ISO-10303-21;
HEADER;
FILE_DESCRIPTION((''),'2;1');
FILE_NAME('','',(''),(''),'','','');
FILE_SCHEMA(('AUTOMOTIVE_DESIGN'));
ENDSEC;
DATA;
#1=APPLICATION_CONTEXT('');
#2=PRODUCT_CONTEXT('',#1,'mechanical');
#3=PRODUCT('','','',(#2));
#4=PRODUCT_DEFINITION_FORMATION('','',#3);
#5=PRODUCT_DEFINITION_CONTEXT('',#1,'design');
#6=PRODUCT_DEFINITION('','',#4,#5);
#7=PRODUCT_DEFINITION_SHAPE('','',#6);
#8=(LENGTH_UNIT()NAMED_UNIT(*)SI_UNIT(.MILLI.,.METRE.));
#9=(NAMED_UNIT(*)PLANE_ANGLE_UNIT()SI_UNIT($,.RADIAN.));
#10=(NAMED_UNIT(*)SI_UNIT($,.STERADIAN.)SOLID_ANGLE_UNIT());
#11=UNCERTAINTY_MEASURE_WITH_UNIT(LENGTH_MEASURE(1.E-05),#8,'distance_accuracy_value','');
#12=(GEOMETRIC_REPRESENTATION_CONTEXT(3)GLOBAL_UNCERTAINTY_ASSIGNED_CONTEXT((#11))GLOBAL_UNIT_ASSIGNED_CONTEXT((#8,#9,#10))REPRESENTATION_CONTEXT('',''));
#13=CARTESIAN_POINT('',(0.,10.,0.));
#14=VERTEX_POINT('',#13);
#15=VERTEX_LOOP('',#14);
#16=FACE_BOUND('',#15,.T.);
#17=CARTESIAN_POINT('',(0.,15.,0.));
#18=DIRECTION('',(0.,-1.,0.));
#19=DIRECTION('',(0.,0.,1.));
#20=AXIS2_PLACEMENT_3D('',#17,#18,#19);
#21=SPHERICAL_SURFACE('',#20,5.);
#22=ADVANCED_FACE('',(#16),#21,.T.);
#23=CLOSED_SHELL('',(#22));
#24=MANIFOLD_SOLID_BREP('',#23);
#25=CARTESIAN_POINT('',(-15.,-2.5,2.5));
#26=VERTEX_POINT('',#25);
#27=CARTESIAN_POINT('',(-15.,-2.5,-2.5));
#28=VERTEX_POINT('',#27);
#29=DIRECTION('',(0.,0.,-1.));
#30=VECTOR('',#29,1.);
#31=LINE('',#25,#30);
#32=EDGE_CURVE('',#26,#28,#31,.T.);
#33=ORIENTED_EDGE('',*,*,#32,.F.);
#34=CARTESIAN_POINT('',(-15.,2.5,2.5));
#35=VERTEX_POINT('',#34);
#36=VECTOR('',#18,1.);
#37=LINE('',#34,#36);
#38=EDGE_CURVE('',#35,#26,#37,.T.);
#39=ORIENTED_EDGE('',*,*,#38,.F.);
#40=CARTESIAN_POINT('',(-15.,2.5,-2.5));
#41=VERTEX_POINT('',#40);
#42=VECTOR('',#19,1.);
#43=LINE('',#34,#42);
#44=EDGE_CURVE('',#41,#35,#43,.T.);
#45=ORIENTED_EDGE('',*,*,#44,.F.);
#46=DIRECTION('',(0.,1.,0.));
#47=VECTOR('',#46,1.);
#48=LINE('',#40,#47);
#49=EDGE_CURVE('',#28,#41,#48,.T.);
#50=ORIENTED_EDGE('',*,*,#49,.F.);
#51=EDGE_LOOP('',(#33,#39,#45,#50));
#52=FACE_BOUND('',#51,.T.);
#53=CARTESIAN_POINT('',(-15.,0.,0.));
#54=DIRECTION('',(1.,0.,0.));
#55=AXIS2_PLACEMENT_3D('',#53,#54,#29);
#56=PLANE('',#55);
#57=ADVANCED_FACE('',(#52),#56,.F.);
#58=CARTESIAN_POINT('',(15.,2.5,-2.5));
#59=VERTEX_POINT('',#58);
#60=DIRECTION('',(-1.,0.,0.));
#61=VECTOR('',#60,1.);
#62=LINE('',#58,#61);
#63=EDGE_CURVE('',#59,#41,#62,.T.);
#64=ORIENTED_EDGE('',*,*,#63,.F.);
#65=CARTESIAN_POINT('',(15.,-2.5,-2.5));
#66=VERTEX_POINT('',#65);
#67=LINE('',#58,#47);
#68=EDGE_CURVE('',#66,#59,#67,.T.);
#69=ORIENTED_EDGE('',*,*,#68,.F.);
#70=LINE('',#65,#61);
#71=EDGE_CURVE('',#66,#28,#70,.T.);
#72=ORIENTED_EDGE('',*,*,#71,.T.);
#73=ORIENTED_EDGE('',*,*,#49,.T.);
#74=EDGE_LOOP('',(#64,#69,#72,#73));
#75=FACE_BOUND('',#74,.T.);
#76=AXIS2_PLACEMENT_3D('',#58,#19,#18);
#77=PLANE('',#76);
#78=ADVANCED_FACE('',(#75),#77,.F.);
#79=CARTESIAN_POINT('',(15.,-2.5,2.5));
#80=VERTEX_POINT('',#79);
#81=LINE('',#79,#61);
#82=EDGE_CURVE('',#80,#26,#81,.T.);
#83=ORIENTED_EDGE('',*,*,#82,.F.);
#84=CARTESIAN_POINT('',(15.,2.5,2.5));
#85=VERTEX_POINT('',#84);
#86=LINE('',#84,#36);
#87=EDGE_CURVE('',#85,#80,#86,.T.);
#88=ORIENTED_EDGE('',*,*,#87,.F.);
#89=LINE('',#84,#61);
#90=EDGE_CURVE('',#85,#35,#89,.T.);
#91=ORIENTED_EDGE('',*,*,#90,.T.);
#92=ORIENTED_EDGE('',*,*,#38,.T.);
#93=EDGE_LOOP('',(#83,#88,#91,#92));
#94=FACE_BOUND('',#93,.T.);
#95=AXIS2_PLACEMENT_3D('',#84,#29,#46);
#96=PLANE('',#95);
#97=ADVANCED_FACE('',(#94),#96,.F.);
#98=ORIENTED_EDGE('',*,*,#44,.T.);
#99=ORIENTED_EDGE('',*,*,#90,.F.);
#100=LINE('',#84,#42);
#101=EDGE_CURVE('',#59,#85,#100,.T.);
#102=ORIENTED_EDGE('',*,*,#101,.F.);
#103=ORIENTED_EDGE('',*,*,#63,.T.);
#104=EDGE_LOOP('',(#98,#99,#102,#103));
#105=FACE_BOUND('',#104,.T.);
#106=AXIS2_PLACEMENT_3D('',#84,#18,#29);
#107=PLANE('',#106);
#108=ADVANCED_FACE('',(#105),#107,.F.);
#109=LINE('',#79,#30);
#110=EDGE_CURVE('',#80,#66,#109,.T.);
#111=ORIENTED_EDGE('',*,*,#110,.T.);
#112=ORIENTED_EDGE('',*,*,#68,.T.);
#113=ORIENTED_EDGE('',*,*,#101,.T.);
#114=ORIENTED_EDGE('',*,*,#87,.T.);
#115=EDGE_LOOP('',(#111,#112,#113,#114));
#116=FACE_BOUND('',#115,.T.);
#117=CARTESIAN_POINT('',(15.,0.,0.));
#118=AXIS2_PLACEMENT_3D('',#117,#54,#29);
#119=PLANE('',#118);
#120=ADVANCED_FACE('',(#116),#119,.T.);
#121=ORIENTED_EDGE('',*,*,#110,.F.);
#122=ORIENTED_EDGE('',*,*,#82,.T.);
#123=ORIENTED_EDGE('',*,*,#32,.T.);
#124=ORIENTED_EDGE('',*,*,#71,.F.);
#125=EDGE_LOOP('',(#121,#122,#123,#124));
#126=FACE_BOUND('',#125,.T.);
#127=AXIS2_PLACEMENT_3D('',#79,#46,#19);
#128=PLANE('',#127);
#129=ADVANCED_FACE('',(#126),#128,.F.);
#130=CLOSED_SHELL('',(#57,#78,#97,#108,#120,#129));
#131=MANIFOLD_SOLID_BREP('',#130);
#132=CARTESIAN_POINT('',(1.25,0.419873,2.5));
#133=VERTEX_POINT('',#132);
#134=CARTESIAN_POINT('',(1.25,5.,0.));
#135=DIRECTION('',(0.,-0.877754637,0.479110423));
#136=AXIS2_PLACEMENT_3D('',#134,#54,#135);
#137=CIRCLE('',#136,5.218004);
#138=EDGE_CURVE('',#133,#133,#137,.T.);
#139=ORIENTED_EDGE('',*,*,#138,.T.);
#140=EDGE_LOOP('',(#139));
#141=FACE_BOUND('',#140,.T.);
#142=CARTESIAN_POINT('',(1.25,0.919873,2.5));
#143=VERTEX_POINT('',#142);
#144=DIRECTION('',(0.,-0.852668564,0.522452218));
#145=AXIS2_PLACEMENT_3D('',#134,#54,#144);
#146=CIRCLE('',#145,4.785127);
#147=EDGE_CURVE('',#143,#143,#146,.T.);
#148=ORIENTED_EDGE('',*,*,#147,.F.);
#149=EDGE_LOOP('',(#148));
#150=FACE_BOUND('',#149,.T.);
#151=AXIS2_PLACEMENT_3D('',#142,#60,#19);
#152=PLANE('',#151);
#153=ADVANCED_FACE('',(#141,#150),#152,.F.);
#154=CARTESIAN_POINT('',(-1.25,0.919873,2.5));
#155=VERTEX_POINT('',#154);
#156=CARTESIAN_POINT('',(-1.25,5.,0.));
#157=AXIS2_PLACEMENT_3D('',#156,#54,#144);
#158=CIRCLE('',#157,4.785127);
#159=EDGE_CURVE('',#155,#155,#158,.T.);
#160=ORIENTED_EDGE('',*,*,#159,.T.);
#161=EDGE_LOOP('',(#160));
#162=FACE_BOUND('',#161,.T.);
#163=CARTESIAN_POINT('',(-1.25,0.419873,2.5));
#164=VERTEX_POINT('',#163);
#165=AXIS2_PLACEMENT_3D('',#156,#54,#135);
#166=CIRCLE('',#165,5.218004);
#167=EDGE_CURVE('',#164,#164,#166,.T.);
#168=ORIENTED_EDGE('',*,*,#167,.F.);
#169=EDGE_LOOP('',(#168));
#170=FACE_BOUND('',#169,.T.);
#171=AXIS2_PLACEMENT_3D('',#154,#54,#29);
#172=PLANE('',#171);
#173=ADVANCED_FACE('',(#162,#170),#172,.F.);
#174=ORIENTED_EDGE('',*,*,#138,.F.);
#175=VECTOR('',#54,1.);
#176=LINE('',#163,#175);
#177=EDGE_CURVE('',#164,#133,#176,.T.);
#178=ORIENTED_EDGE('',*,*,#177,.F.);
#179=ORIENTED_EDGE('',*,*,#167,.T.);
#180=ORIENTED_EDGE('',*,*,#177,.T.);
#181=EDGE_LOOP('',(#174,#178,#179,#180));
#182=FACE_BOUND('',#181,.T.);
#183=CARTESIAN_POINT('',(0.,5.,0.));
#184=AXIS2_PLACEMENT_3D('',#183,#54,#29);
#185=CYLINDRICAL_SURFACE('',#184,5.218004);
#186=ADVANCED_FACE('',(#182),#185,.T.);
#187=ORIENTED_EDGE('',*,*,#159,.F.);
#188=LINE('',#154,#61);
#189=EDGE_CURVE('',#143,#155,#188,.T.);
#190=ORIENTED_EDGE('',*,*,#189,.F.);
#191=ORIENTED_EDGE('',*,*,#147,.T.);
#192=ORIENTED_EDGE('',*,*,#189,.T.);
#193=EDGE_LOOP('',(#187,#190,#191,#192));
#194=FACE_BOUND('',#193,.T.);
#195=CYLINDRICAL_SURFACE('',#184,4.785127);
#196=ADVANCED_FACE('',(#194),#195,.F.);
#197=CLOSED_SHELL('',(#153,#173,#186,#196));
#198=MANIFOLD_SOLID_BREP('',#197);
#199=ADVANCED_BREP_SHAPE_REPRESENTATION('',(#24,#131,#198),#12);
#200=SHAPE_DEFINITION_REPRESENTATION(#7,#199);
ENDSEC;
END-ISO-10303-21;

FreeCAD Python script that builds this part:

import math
import FreeCAD as App
import Part
import Sketcher
from FreeCAD import Vector
Q = App.Units.Quantity


def add_polygon(sketch, points):
    """Adds a closed chain of lines whose ends are joined by coincident constraints."""
    first, n = sketch.GeometryCount, len(points)
    for a, b in zip(points, points[1:] + points[:1]):
        sketch.addGeometry(Part.LineSegment(App.Vector(*a, 0), App.Vector(*b, 0)), False)
    for i in range(n):
        sketch.addConstraint(Sketcher.Constraint("Coincident", first + i, 2, first + (i + 1) % n, 1))

doc = App.newDocument("Part")
params = doc.addObject("Spreadsheet::Sheet", "Params")
for row, (alias, value) in enumerate([
    ("sketch1_width", "5 mm"),
    ("pad1_length", "30 mm"),
    ("sketch2_radius", "5 mm"),
    ("revolution_angle", "360 deg"),
    ("sketch3_width", "2.5 mm"),
    ("sketch3_height", "0.5 mm"),
    ("sketch4_diameter", "10 mm"),
], start=1):
    params.set(f"A{row}", alias)
    params.set(f"B{row}", "=" + value)
    params.setAlias(f"B{row}", alias)

body = doc.addObject("PartDesign::Body", "Body")

# Sketch on YZ plane
sketch1 = doc.addObject("Sketcher::SketchObject", "Sketch")
body.addObject(sketch1)
sketch1.AttachmentSupport = (doc.YZ_Plane, [""])
sketch1.MapMode = "FlatFace"
add_polygon(sketch1, [(2.5, 2.5), (-2.5, 2.5), (-2.5, -2.5), (2.5, -2.5)])  # lines 0-3
sketch1.addConstraint([
    Sketcher.Constraint("Horizontal", 0),
    Sketcher.Constraint("Vertical", 1),
    Sketcher.Constraint("Horizontal", 2),
    Sketcher.Constraint("Vertical", 3),
    Sketcher.Constraint("Symmetric", 0, 2, 2, 2, -1, 1),
    Sketcher.Constraint("Equal", 2, 1),
    Sketcher.Constraint("DistanceX", 0, 2, 0, 1, Q("5 mm")),
])
sketch1.setExpression("Constraints[10]", "Params.sketch1_width")
pad1 = doc.addObject("PartDesign::Pad", "Pad")
body.addObject(pad1)
pad1.Profile = sketch1
pad1.setExpression("Length", "Params.pad1_length")
pad1.Midplane = True
body2 = doc.addObject("PartDesign::Body", "Body001")

# Sketch on YZ plane
sketch2 = doc.addObject("Sketcher::SketchObject", "Sketch001")
body2.addObject(sketch2)
sketch2.AttachmentSupport = (doc.getObject("YZ_Plane001"), [""])
sketch2.MapMode = "FlatFace"
sketch2.addGeometry([
    Part.LineSegment(Vector(10, 0, 0), Vector(20, 0, 0)),
    Part.ArcOfCircle(Part.Circle(Vector(15, 0, 0), Vector(0, 0, 1), 5), math.radians(0), math.radians(180)),
], False)
sketch2.addConstraint([
    Sketcher.Constraint("Coincident", 0, 1, 1, 2),
    Sketcher.Constraint("Coincident", 1, 1, 0, 2),
    Sketcher.Constraint("Horizontal", 0),
    Sketcher.Constraint("PointOnObject", 1, 3, -1),
    Sketcher.Constraint("PointOnObject", 0, 1, -1),
    Sketcher.Constraint("Radius", 1, Q("5 mm")),
    Sketcher.Constraint("DistanceX", -1, 1, 1, 3, Q("15 mm")),
])
sketch2.setExpression("Constraints[5]", "Params.sketch2_radius")
revolution = doc.addObject("PartDesign::Revolution", "Revolution")
body2.addObject(revolution)
revolution.Profile = sketch2
revolution.ReferenceAxis = (sketch2, ["H_Axis"])
revolution.setExpression("Angle", "Params.revolution_angle")
body3 = doc.addObject("PartDesign::Body", "Body002")

# Sketch on XY plane
sketch3 = doc.addObject("Sketcher::SketchObject", "Sketch002")
body3.addObject(sketch3)
sketch3.AttachmentSupport = (doc.getObject("XY_Plane002"), [""])
sketch3.MapMode = "FlatFace"
sketch3.AttachmentOffset = App.Placement(Vector(0, 0, 2.5), App.Rotation())
add_polygon(sketch3, [(-1.25, 0.919873), (-1.25, 0.419873), (1.25, 0.419873), (1.25, 0.919873)])  # lines 0-3
sketch3.addConstraint([
    Sketcher.Constraint("Vertical", 0),
    Sketcher.Constraint("Horizontal", 1),
    Sketcher.Constraint("Vertical", 2),
    Sketcher.Constraint("Horizontal", 3),
    Sketcher.Constraint("DistanceX", 1, 1, 1, 2, Q("2.5 mm")),
    Sketcher.Constraint("DistanceY", 0, 2, 0, 1, Q("0.5 mm")),
    Sketcher.Constraint("DistanceX", 0, 2, -1, 1, Q("1.25 mm")),
    Sketcher.Constraint("DistanceY", -1, 1, 0, 2, Q("0.419873 mm")),
])
sketch3.setExpression("Constraints[8]", "Params.sketch3_width")
sketch3.setExpression("Constraints[9]", "Params.sketch3_height")

# Sketch on YZ plane
sketch4 = doc.addObject("Sketcher::SketchObject", "Sketch003")
body3.addObject(sketch4)
sketch4.AttachmentSupport = (doc.getObject("YZ_Plane002"), [""])
sketch4.MapMode = "FlatFace"
sketch4.addGeometry(Part.Circle(Vector(5, 0, 0), Vector(0, 0, 1), 5), False)
sketch4.addConstraint([
    Sketcher.Constraint("PointOnObject", 0, 3, -1),
    Sketcher.Constraint("Diameter", 0, Q("10 mm")),
    Sketcher.Constraint("DistanceX", -1, 1, 0, 3, Q("5 mm")),
])
sketch4.setExpression("Constraints[1]", "Params.sketch4_diameter")
doc.recompute()

additivepipe = doc.addObject("PartDesign::AdditivePipe", "AdditivePipe")
body3.addObject(additivepipe)
additivepipe.Profile = sketch3
additivepipe.Spine = (sketch4, ["Edge1"])

doc.recompute()
